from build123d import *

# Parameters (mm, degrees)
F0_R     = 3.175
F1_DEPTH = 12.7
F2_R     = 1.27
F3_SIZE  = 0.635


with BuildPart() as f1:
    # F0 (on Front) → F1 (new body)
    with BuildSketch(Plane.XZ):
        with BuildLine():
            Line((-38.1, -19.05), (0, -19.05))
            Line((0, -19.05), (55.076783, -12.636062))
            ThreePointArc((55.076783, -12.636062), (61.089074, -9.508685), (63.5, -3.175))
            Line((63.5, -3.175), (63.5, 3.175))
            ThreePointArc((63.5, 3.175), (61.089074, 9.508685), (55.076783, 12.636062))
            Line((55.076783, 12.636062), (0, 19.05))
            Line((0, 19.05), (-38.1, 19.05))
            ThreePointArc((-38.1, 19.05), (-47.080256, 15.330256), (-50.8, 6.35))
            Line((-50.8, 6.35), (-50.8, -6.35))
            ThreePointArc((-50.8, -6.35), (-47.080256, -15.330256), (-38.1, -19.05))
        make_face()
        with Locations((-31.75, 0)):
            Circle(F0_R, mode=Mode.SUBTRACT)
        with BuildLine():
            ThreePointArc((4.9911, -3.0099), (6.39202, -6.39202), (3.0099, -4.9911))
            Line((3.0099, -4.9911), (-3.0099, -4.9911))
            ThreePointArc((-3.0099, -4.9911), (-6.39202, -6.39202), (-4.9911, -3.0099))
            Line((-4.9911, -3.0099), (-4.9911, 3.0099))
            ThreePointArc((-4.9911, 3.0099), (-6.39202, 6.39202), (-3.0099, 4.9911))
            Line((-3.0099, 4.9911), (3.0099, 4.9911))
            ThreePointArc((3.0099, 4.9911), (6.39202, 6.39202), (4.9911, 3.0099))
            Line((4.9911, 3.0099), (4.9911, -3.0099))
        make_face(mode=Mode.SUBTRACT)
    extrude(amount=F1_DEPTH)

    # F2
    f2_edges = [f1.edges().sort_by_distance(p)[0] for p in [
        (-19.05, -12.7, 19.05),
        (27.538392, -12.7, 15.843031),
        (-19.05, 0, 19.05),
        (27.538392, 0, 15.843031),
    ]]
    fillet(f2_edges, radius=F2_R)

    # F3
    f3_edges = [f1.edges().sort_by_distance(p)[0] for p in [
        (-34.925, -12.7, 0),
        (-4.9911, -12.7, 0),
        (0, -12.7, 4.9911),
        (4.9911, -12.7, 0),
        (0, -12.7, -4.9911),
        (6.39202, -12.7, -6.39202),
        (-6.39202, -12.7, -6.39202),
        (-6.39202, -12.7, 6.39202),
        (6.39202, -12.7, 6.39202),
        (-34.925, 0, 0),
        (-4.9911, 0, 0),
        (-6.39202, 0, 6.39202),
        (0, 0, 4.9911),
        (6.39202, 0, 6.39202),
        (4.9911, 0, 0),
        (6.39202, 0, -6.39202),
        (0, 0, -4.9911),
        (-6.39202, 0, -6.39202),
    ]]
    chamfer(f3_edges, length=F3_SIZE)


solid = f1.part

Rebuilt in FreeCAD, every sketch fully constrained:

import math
import FreeCAD as App
import Part
import Sketcher

V = App.Vector
Q = App.Units.Quantity


def edges_at(feature, points):
    """Names of the edges that pass closest to the given points."""
    edges = feature.Shape.Edges
    near = lambda p: min(range(len(edges)), key=lambda i: edges[i].distToShape(Part.Vertex(*p))[0])
    return sorted({f"Edge{near(p) + 1}" for p in points})

doc = App.newDocument("Part")
body = doc.addObject("PartDesign::Body", "Body")

# Sketch on XZ plane
sketch1 = body.newObject("Sketcher::SketchObject", "Sketch")
sketch1.AttachmentSupport = (doc.getObject("XZ_Plane"), [""])
sketch1.MapMode = "FlatFace"
sketch1.addGeometry(Part.LineSegment(V(-38.1, -19.05, 0), V(0, -19.05, 0)), False)
sketch1.addGeometry(Part.LineSegment(V(0, -19.05, 0), V(55.076783, -12.636062, 0)), False)
sketch1.addGeometry(Part.ArcOfCircle(Part.Circle(V(53.974999, -3.174999, 0), V(0, 0, 1), 9.525001), math.radians(-83.357564), math.radians(-0.000007)), False)
sketch1.addGeometry(Part.LineSegment(V(63.5, -3.175, 0), V(63.5, 3.175, 0)), False)
sketch1.addGeometry(Part.ArcOfCircle(Part.Circle(V(53.974999, 3.174999, 0), V(0, 0, 1), 9.525001), math.radians(0.000007), math.radians(83.357564)), False)
sketch1.addGeometry(Part.LineSegment(V(55.076783, 12.636062, 0), V(0, 19.05, 0)), False)
sketch1.addGeometry(Part.LineSegment(V(0, 19.05, 0), V(-38.1, 19.05, 0)), False)
sketch1.addGeometry(Part.ArcOfCircle(Part.Circle(V(-38.1, 6.35, 0), V(0, 0, 1), 12.7), math.radians(90.000002), math.radians(179.999998)), False)
sketch1.addGeometry(Part.LineSegment(V(-50.8, 6.35, 0), V(-50.8, -6.35, 0)), False)
sketch1.addGeometry(Part.ArcOfCircle(Part.Circle(V(-38.1, -6.35, 0), V(0, 0, 1), 12.7), math.radians(-179.999998), math.radians(-90.000002)), False)
sketch1.addGeometry(Part.Circle(V(-31.75, 0, 0), V(0, 0, 1), 3.175), False)
sketch1.addGeometry(Part.LineSegment(V(4.9911, 3.0099, 0), V(4.9911, -3.0099, 0)), False)
sketch1.addGeometry(Part.ArcOfCircle(Part.Circle(V(4.9911, -4.9911, 0), V(0, 0, 1), 1.9812), math.radians(179.999999), math.radians(450.000001)), False)
sketch1.addGeometry(Part.LineSegment(V(3.0099, -4.9911, 0), V(-3.0099, -4.9911, 0)), False)
sketch1.addGeometry(Part.ArcOfCircle(Part.Circle(V(-4.9911, -4.9911, 0), V(0, 0, 1), 1.9812), math.radians(89.999999), math.radians(360.000001)), False)
sketch1.addGeometry(Part.LineSegment(V(-4.9911, -3.0099, 0), V(-4.9911, 3.0099, 0)), False)
sketch1.addGeometry(Part.ArcOfCircle(Part.Circle(V(-4.9911, 4.9911, 0), V(0, 0, 1), 1.9812), math.radians(-0.000001), math.radians(270.000001)), False)
sketch1.addGeometry(Part.LineSegment(V(-3.0099, 4.9911, 0), V(3.0099, 4.9911, 0)), False)
sketch1.addGeometry(Part.ArcOfCircle(Part.Circle(V(4.9911, 4.9911, 0), V(0, 0, 1), 1.9812), math.radians(-90.000001), math.radians(180.000001)), False)
sketch1.addConstraint(Sketcher.Constraint("Coincident", 0, 2, 1, 1))
sketch1.addConstraint(Sketcher.Constraint("Tangent", 1, 2, 2, 1))
sketch1.addConstraint(Sketcher.Constraint("Tangent", 2, 2, 3, 1))
sketch1.addConstraint(Sketcher.Constraint("Tangent", 3, 2, 4, 1))
sketch1.addConstraint(Sketcher.Constraint("Tangent", 4, 2, 5, 1))
sketch1.addConstraint(Sketcher.Constraint("Coincident", 5, 2, 6, 1))
sketch1.addConstraint(Sketcher.Constraint("Tangent", 6, 2, 7, 1))
sketch1.addConstraint(Sketcher.Constraint("Tangent", 7, 2, 8, 1))
sketch1.addConstraint(Sketcher.Constraint("Tangent", 8, 2, 9, 1))
sketch1.addConstraint(Sketcher.Constraint("Tangent", 9, 2, 0, 1))
sketch1.addConstraint(Sketcher.Constraint("Coincident", 11, 2, 12, 2))
sketch1.addConstraint(Sketcher.Constraint("Coincident", 12, 1, 13, 1))
sketch1.addConstraint(Sketcher.Constraint("Coincident", 13, 2, 14, 2))
sketch1.addConstraint(Sketcher.Constraint("Coincident", 14, 1, 15, 1))
sketch1.addConstraint(Sketcher.Constraint("Coincident", 15, 2, 16, 2))
sketch1.addConstraint(Sketcher.Constraint("Coincident", 16, 1, 17, 1))
sketch1.addConstraint(Sketcher.Constraint("Coincident", 17, 2, 18, 2))
sketch1.addConstraint(Sketcher.Constraint("Coincident", 18, 1, 11, 1))
sketch1.addConstraint(Sketcher.Constraint("Horizontal", 0))
sketch1.addConstraint(Sketcher.Constraint("Vertical", 3))
sketch1.addConstraint(Sketcher.Constraint("Horizontal", 6))
sketch1.addConstraint(Sketcher.Constraint("Vertical", 8))
sketch1.addConstraint(Sketcher.Constraint("Vertical", 11))
sketch1.addConstraint(Sketcher.Constraint("Horizontal", 13))
sketch1.addConstraint(Sketcher.Constraint("Vertical", 15))
sketch1.addConstraint(Sketcher.Constraint("Horizontal", 17))
sketch1.addConstraint(Sketcher.Constraint("Equal", 2, 4))
sketch1.addConstraint(Sketcher.Constraint("Equal", 7, 9))
sketch1.addConstraint(Sketcher.Constraint("Equal", 12, 14))
sketch1.addConstraint(Sketcher.Constraint("Equal", 14, 16))
sketch1.addConstraint(Sketcher.Constraint("Equal", 16, 18))
sketch1.addConstraint(Sketcher.Constraint("Symmetric", 12, 3, 16, 3, -1, 1))
sketch1.addConstraint(Sketcher.Constraint("Symmetric", 14, 3, 18, 3, -1, 1))
sketch1.addConstraint(Sketcher.Constraint("Symmetric", 0, 2, 5, 2, -1, 1))
sketch1.addConstraint(Sketcher.Constraint("Symmetric", 12, 3, 14, 3, -2))
sketch1.addConstraint(Sketcher.Constraint("Symmetric", 1, 2, 4, 2, -1))
sketch1.addConstraint(Sketcher.Constraint("PointOnObject", 10, 3, -1))
sketch1.addConstraint(Sketcher.Constraint("Horizontal", 14, 3, 12, 1))
sketch1.addConstraint(Sketcher.Constraint("Horizontal", 18, 3, 16, 1))
sketch1.addConstraint(Sketcher.Constraint("Vertical", 18, 3, 11, 2))
sketch1.addConstraint(Sketcher.Constraint("Vertical", 16, 3, 14, 1))
sketch1.addConstraint(Sketcher.Constraint("Equal", 17, 11))
sketch1.addConstraint(Sketcher.Constraint("Radius", 7, Q("0.5 in")))
sketch1.addConstraint(Sketcher.Constraint("Diameter", 10, Q("0.25 in")))
sketch1.addConstraint(Sketcher.Constraint("DistanceX", 0, 1, 0, 2, Q("1.5 in")))
sketch1.addConstraint(Sketcher.Constraint("DistanceY", 8, 2, 8, 1, Q("0.5 in")))
sketch1.addConstraint(Sketcher.Constraint("Radius", 2, Q("0.375 in")))
sketch1.addConstraint(Sketcher.Constraint("Radius", 12, Q("0.078 in")))
sketch1.addConstraint(Sketcher.Constraint("DistanceY", 3, 1, 3, 2, Q("0.25 in")))
sketch1.addConstraint(Sketcher.Constraint("DistanceX", -1, 1, 2, 2, Q("2.5 in")))
sketch1.addConstraint(Sketcher.Constraint("DistanceX", 13, 2, 13, 1, Q("0.237 in")))
sketch1.addConstraint(Sketcher.Constraint("DistanceX", 10, 3, -1, 1, Q("1.25 in")))
pad1 = body.newObject("PartDesign::Pad", "Pad")
pad1.Profile = sketch1
pad1.Length = Q("0.5 in")
doc.recompute()

fillet = body.newObject("PartDesign::Fillet", "Fillet")
fillet.Base = (pad1, edges_at(pad1, [
    (-19.05, -12.7, 19.05),
    (27.538, -12.7, 15.843),
    (-19.05, 0, 19.05),
    (27.538, 0, 15.843),
]))
fillet.Radius = Q("0.05 in")
doc.recompute()

chamfer = body.newObject("PartDesign::Chamfer", "Chamfer")
chamfer.Base = (fillet, edges_at(fillet, [
    (-34.925, -12.7, 0),
    (-4.991, -12.7, 0),
    (0, -12.7, 4.991),
    (4.991, -12.7, 0),
    (0, -12.7, -4.991),
    (6.392, -12.7, -6.392),
    (-6.392, -12.7, -6.392),
    (-6.392, -12.7, 6.392),
    (6.392, -12.7, 6.392),
    (-34.925, 0, 0),
    (-4.991, 0, 0),
    (-6.392, 0, 6.392),
    (0, 0, 4.991),
    (6.392, 0, 6.392),
    (4.991, 0, 0),
    (6.392, 0, -6.392),
    (0, 0, -4.991),
    (-6.392, 0, -6.392),
]))
chamfer.Size = Q("0.025 in")

doc.recompute()
